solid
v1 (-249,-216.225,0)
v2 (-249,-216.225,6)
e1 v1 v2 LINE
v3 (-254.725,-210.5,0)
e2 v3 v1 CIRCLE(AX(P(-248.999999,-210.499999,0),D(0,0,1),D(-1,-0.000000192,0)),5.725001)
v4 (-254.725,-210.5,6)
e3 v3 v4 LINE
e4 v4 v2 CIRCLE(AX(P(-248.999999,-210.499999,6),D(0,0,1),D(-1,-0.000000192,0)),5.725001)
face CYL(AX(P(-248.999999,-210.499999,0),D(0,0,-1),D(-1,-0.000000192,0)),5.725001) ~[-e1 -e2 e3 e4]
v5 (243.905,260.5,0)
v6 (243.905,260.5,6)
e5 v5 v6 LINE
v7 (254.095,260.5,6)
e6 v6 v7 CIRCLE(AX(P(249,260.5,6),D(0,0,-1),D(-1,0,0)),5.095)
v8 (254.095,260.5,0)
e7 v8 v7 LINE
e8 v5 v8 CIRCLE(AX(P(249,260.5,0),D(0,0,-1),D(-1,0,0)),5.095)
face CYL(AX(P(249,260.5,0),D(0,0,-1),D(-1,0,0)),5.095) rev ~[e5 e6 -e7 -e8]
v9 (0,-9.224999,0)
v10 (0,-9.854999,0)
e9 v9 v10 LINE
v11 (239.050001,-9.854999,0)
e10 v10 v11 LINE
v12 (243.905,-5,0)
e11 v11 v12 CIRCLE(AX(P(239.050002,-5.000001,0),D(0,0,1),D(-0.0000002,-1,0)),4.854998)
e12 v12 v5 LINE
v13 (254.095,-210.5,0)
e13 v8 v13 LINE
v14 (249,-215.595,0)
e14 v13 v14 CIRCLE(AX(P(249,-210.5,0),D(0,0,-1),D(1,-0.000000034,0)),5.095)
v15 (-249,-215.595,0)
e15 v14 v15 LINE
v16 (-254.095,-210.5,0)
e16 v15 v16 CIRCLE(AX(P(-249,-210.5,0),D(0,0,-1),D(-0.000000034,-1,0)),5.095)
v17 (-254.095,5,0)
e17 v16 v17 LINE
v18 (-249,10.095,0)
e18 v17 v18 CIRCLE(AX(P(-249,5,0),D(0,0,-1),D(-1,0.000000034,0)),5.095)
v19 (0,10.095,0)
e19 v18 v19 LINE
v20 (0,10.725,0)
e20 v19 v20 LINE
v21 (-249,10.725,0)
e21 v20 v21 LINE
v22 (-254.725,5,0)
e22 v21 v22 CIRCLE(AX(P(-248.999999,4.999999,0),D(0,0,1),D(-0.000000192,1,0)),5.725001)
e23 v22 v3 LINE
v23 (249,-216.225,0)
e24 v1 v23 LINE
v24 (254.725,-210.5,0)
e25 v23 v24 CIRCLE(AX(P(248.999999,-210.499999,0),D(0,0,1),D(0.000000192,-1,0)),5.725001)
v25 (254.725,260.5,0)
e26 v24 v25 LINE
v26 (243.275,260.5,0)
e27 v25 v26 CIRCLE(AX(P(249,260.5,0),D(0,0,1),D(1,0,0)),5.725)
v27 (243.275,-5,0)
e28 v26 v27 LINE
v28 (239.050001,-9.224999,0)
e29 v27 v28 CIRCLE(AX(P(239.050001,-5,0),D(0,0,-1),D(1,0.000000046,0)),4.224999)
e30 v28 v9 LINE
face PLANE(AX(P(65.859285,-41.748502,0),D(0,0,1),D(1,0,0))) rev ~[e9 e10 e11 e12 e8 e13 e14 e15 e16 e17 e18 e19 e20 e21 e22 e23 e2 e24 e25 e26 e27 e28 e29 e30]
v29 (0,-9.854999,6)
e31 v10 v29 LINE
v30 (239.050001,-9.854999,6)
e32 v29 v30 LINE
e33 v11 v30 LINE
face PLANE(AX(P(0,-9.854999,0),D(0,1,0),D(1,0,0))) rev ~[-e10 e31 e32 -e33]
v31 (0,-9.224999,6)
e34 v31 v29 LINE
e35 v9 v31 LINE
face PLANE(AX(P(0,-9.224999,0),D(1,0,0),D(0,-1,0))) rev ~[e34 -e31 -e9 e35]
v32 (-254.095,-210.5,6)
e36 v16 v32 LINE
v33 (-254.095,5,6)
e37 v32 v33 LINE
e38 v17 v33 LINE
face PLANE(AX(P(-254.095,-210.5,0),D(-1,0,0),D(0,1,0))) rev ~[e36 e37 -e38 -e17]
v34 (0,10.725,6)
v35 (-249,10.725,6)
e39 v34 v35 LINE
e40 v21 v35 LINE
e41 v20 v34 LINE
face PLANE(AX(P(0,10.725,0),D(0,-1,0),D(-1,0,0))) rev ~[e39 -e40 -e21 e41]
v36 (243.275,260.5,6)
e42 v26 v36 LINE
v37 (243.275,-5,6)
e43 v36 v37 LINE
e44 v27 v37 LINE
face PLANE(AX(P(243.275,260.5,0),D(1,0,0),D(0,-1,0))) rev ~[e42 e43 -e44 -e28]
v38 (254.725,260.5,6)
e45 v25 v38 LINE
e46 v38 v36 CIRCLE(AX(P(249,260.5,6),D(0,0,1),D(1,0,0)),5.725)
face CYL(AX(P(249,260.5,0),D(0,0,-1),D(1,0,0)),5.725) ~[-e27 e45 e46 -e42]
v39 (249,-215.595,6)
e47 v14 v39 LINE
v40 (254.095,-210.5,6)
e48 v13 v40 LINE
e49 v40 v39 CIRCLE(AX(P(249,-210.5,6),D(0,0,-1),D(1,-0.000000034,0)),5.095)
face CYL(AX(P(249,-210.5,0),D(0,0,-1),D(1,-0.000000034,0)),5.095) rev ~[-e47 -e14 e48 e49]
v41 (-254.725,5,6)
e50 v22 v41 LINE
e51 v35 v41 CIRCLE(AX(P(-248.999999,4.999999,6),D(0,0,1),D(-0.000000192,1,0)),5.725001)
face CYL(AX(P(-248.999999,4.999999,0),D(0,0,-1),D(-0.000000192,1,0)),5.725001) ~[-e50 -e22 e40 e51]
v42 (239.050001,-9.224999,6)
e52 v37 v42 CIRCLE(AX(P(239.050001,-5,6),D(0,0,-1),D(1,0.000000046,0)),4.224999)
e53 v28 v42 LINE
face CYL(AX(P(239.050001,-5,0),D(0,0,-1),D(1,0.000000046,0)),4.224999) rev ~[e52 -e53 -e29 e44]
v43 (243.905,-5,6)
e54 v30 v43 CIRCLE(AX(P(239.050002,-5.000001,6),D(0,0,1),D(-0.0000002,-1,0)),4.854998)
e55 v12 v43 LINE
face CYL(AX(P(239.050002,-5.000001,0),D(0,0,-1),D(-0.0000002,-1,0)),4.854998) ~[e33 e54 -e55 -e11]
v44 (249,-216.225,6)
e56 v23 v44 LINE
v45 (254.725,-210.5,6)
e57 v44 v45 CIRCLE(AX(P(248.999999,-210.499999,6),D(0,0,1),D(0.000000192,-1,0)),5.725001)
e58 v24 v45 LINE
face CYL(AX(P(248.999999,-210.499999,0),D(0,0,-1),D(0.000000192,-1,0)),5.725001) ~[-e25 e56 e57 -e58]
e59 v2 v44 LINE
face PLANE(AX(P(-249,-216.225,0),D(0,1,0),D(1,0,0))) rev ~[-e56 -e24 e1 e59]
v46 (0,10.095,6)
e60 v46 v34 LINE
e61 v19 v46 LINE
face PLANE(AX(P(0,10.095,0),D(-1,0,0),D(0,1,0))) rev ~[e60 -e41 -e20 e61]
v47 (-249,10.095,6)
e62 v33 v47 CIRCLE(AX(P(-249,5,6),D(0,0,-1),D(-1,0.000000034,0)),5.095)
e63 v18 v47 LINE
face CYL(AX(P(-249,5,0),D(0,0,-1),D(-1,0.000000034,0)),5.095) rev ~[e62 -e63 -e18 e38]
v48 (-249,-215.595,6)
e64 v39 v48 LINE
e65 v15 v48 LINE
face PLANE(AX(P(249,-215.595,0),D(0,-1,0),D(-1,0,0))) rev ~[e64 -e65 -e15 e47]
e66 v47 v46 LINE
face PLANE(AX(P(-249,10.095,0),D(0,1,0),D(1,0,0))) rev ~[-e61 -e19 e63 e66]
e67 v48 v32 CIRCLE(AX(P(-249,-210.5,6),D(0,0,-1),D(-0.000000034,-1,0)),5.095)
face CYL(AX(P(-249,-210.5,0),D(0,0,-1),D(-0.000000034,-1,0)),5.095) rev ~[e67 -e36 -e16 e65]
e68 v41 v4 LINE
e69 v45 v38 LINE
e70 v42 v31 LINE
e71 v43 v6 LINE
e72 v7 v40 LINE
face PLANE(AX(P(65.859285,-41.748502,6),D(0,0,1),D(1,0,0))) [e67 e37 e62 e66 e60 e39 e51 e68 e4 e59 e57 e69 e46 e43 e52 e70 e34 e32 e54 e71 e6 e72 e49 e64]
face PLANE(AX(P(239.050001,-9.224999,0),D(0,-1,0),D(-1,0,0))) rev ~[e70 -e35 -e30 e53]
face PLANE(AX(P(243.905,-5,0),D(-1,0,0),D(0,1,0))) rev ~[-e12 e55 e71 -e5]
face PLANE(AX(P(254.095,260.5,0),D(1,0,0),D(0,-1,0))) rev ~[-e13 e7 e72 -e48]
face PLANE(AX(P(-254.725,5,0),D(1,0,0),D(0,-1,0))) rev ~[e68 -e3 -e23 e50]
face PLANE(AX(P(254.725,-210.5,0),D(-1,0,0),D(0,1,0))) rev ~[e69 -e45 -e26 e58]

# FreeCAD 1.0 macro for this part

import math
import FreeCAD as App
import Part
import Sketcher
Q = App.Units.Quantity

doc = App.newDocument("Part")
params = doc.addObject("Spreadsheet::Sheet", "Params")
for row, (alias, value) in enumerate([
    ("sketch1_width", "498 mm"),
    ("sketch1_width2", "249 mm"),
    ("sketch1_height", "471 mm"),
    ("sketch1_height2", "215.5 mm"),
    ("sketch1_height3", "265.5 mm"),
    ("pad1_length", "6 mm"),
], start=1):
    params.set(f"A{row}", alias)
    params.set(f"B{row}", "=" + value)
    params.setAlias(f"B{row}", alias)

body = doc.addObject("PartDesign::Body", "Body")

sketch1 = body.newObject("Sketcher::SketchObject", "Sketch")
sketch1.AttachmentSupport = (doc.getObject("XY_Plane"), [""])
sketch1.MapMode = "FlatFace"
sketch1.addGeometry([
    Part.ArcOfCircle(Part.Circle(App.Vector(249, 260.5, 0), App.Vector(0, 0, 1), 5.095), math.radians(0), math.radians(180)),
    Part.LineSegment(App.Vector(254.095, 260.5, 0), App.Vector(254.095, -210.5, 0)),
    Part.ArcOfCircle(Part.Circle(App.Vector(249, -210.5, 0), App.Vector(0, 0, 1), 5.095), math.radians(-89.999998), math.radians(-0.000002)),
    Part.LineSegment(App.Vector(249, -215.595, 0), App.Vector(-249, -215.595, 0)),
    Part.ArcOfCircle(Part.Circle(App.Vector(-249, -210.5, 0), App.Vector(0, 0, 1), 5.095), math.radians(-179.999998), math.radians(-90.000002)),
    Part.LineSegment(App.Vector(-254.095, -210.5, 0), App.Vector(-254.095, 5, 0)),
    Part.ArcOfCircle(Part.Circle(App.Vector(-249, 5, 0), App.Vector(0, 0, 1), 5.095), math.radians(90.000002), math.radians(179.999998)),
    Part.LineSegment(App.Vector(-249, 10.095, 0), App.Vector(0, 10.095, 0)),
    Part.LineSegment(App.Vector(0, 10.095, 0), App.Vector(0, 10.725, 0)),
    Part.LineSegment(App.Vector(0, 10.725, 0), App.Vector(-249, 10.725, 0)),
    Part.ArcOfCircle(Part.Circle(App.Vector(-248.999999, 4.999999, 0), App.Vector(0, 0, 1), 5.725001), math.radians(90.000011), math.radians(179.999989)),
    Part.LineSegment(App.Vector(-254.725, 5, 0), App.Vector(-254.725, -210.5, 0)),
    Part.ArcOfCircle(Part.Circle(App.Vector(-248.999999, -210.499999, 0), App.Vector(0, 0, 1), 5.725001), math.radians(-179.999989), math.radians(-90.000011)),
    Part.LineSegment(App.Vector(-249, -216.225, 0), App.Vector(249, -216.225, 0)),
    Part.ArcOfCircle(Part.Circle(App.Vector(248.999999, -210.499999, 0), App.Vector(0, 0, 1), 5.725001), math.radians(-89.999989), math.radians(-0.000011)),
    Part.LineSegment(App.Vector(254.725, -210.5, 0), App.Vector(254.725, 260.5, 0)),
    Part.ArcOfCircle(Part.Circle(App.Vector(249, 260.5, 0), App.Vector(0, 0, 1), 5.725), math.radians(0), math.radians(180)),
    Part.LineSegment(App.Vector(243.275, 260.5, 0), App.Vector(243.275, -5, 0)),
    Part.ArcOfCircle(Part.Circle(App.Vector(239.050001, -5, 0), App.Vector(0, 0, 1), 4.224999), math.radians(-90.000003), math.radians(0.000003)),
    Part.LineSegment(App.Vector(239.050001, -9.224999, 0), App.Vector(0, -9.224999, 0)),
    Part.LineSegment(App.Vector(0, -9.224999, 0), App.Vector(0, -9.854999, 0)),
    Part.LineSegment(App.Vector(0, -9.854999, 0), App.Vector(239.050001, -9.854999, 0)),
    Part.ArcOfCircle(Part.Circle(App.Vector(239.050002, -5.000001, 0), App.Vector(0, 0, 1), 4.854998), math.radians(-90.000011), math.radians(0.000011)),
    Part.LineSegment(App.Vector(243.905, -5, 0), App.Vector(243.905, 260.5, 0)),
], False)
sketch1.addConstraint([
    Sketcher.Constraint("Tangent", 0, 1, 1, 1),
    Sketcher.Constraint("Tangent", 1, 2, 2, 2),
    Sketcher.Constraint("Tangent", 2, 1, 3, 1),
    Sketcher.Constraint("Tangent", 3, 2, 4, 2),
    Sketcher.Constraint("Tangent", 4, 1, 5, 1),
    Sketcher.Constraint("Tangent", 5, 2, 6, 2),
    Sketcher.Constraint("Tangent", 6, 1, 7, 1),
    Sketcher.Constraint("Coincident", 7, 2, 8, 1),
    Sketcher.Constraint("Coincident", 8, 2, 9, 1),
    Sketcher.Constraint("Tangent", 9, 2, 10, 1),
    Sketcher.Constraint("Tangent", 10, 2, 11, 1),
    Sketcher.Constraint("Tangent", 11, 2, 12, 1),
    Sketcher.Constraint("Tangent", 12, 2, 13, 1),
    Sketcher.Constraint("Tangent", 13, 2, 14, 1),
    Sketcher.Constraint("Tangent", 14, 2, 15, 1),
    Sketcher.Constraint("Tangent", 15, 2, 16, 1),
    Sketcher.Constraint("Tangent", 16, 2, 17, 1),
    Sketcher.Constraint("Tangent", 17, 2, 18, 2),
    Sketcher.Constraint("Tangent", 18, 1, 19, 1),
    Sketcher.Constraint("Coincident", 19, 2, 20, 1),
    Sketcher.Constraint("Coincident", 20, 2, 21, 1),
    Sketcher.Constraint("Tangent", 21, 2, 22, 1),
    Sketcher.Constraint("Tangent", 22, 2, 23, 1),
    Sketcher.Constraint("Tangent", 23, 2, 0, 2),
    Sketcher.Constraint("Vertical", 1),
    Sketcher.Constraint("Horizontal", 3),
    Sketcher.Constraint("Vertical", 5),
    Sketcher.Constraint("Horizontal", 7),
    Sketcher.Constraint("Vertical", 8),
    Sketcher.Constraint("Horizontal", 9),
    Sketcher.Constraint("Vertical", 11),
    Sketcher.Constraint("Horizontal", 13),
    Sketcher.Constraint("Vertical", 15),
    Sketcher.Constraint("Vertical", 17),
    Sketcher.Constraint("Horizontal", 19),
    Sketcher.Constraint("Vertical", 20),
    Sketcher.Constraint("Horizontal", 21),
    Sketcher.Constraint("Vertical", 23),
    Sketcher.Constraint("Coincident", 10, 3, 6, 3),
    Sketcher.Constraint("Coincident", 12, 3, 4, 3),
    Sketcher.Constraint("Coincident", 14, 3, 2, 3),
    Sketcher.Constraint("Coincident", 16, 3, 0, 3),
    Sketcher.Constraint("Coincident", 22, 3, 18, 3),
    Sketcher.Constraint("Equal", 0, 2),
    Sketcher.Constraint("Equal", 2, 4),
    Sketcher.Constraint("Equal", 4, 6),
    Sketcher.Constraint("PointOnObject", 7, 2, -2),
    Sketcher.Constraint("PointOnObject", 19, 2, -2),
    Sketcher.Constraint("DistanceX", 3, 2, 3, 1, Q("498 mm")),
    Sketcher.Constraint("DistanceX", 7, 1, 7, 2, Q("249 mm")),
    Sketcher.Constraint("DistanceY", 1, 2, 1, 1, Q("471 mm")),
    Sketcher.Constraint("DistanceY", 5, 1, 5, 2, Q("215.5 mm")),
    Sketcher.Constraint("DistanceY", 17, 2, 17, 1, Q("265.5 mm")),
    Sketcher.Constraint("DistanceY", -1, 1, 6, 3, Q("5 mm")),
    Sketcher.Constraint("Radius", 0, Q("5.095 mm")),
    Sketcher.Constraint("Radius", 10, Q("5.725001 mm")),
    Sketcher.Constraint("Radius", 18, Q("4.224999 mm")),
])
sketch1.setExpression("Constraints[48]", "Params.sketch1_width")
sketch1.setExpression("Constraints[49]", "Params.sketch1_width2")
sketch1.setExpression("Constraints[50]", "Params.sketch1_height")
sketch1.setExpression("Constraints[51]", "Params.sketch1_height2")
sketch1.setExpression("Constraints[52]", "Params.sketch1_height3")
pad1 = body.newObject("PartDesign::Pad", "Pad")
pad1.Profile = sketch1
pad1.setExpression("Length", "Params.pad1_length")

doc.recompute()
